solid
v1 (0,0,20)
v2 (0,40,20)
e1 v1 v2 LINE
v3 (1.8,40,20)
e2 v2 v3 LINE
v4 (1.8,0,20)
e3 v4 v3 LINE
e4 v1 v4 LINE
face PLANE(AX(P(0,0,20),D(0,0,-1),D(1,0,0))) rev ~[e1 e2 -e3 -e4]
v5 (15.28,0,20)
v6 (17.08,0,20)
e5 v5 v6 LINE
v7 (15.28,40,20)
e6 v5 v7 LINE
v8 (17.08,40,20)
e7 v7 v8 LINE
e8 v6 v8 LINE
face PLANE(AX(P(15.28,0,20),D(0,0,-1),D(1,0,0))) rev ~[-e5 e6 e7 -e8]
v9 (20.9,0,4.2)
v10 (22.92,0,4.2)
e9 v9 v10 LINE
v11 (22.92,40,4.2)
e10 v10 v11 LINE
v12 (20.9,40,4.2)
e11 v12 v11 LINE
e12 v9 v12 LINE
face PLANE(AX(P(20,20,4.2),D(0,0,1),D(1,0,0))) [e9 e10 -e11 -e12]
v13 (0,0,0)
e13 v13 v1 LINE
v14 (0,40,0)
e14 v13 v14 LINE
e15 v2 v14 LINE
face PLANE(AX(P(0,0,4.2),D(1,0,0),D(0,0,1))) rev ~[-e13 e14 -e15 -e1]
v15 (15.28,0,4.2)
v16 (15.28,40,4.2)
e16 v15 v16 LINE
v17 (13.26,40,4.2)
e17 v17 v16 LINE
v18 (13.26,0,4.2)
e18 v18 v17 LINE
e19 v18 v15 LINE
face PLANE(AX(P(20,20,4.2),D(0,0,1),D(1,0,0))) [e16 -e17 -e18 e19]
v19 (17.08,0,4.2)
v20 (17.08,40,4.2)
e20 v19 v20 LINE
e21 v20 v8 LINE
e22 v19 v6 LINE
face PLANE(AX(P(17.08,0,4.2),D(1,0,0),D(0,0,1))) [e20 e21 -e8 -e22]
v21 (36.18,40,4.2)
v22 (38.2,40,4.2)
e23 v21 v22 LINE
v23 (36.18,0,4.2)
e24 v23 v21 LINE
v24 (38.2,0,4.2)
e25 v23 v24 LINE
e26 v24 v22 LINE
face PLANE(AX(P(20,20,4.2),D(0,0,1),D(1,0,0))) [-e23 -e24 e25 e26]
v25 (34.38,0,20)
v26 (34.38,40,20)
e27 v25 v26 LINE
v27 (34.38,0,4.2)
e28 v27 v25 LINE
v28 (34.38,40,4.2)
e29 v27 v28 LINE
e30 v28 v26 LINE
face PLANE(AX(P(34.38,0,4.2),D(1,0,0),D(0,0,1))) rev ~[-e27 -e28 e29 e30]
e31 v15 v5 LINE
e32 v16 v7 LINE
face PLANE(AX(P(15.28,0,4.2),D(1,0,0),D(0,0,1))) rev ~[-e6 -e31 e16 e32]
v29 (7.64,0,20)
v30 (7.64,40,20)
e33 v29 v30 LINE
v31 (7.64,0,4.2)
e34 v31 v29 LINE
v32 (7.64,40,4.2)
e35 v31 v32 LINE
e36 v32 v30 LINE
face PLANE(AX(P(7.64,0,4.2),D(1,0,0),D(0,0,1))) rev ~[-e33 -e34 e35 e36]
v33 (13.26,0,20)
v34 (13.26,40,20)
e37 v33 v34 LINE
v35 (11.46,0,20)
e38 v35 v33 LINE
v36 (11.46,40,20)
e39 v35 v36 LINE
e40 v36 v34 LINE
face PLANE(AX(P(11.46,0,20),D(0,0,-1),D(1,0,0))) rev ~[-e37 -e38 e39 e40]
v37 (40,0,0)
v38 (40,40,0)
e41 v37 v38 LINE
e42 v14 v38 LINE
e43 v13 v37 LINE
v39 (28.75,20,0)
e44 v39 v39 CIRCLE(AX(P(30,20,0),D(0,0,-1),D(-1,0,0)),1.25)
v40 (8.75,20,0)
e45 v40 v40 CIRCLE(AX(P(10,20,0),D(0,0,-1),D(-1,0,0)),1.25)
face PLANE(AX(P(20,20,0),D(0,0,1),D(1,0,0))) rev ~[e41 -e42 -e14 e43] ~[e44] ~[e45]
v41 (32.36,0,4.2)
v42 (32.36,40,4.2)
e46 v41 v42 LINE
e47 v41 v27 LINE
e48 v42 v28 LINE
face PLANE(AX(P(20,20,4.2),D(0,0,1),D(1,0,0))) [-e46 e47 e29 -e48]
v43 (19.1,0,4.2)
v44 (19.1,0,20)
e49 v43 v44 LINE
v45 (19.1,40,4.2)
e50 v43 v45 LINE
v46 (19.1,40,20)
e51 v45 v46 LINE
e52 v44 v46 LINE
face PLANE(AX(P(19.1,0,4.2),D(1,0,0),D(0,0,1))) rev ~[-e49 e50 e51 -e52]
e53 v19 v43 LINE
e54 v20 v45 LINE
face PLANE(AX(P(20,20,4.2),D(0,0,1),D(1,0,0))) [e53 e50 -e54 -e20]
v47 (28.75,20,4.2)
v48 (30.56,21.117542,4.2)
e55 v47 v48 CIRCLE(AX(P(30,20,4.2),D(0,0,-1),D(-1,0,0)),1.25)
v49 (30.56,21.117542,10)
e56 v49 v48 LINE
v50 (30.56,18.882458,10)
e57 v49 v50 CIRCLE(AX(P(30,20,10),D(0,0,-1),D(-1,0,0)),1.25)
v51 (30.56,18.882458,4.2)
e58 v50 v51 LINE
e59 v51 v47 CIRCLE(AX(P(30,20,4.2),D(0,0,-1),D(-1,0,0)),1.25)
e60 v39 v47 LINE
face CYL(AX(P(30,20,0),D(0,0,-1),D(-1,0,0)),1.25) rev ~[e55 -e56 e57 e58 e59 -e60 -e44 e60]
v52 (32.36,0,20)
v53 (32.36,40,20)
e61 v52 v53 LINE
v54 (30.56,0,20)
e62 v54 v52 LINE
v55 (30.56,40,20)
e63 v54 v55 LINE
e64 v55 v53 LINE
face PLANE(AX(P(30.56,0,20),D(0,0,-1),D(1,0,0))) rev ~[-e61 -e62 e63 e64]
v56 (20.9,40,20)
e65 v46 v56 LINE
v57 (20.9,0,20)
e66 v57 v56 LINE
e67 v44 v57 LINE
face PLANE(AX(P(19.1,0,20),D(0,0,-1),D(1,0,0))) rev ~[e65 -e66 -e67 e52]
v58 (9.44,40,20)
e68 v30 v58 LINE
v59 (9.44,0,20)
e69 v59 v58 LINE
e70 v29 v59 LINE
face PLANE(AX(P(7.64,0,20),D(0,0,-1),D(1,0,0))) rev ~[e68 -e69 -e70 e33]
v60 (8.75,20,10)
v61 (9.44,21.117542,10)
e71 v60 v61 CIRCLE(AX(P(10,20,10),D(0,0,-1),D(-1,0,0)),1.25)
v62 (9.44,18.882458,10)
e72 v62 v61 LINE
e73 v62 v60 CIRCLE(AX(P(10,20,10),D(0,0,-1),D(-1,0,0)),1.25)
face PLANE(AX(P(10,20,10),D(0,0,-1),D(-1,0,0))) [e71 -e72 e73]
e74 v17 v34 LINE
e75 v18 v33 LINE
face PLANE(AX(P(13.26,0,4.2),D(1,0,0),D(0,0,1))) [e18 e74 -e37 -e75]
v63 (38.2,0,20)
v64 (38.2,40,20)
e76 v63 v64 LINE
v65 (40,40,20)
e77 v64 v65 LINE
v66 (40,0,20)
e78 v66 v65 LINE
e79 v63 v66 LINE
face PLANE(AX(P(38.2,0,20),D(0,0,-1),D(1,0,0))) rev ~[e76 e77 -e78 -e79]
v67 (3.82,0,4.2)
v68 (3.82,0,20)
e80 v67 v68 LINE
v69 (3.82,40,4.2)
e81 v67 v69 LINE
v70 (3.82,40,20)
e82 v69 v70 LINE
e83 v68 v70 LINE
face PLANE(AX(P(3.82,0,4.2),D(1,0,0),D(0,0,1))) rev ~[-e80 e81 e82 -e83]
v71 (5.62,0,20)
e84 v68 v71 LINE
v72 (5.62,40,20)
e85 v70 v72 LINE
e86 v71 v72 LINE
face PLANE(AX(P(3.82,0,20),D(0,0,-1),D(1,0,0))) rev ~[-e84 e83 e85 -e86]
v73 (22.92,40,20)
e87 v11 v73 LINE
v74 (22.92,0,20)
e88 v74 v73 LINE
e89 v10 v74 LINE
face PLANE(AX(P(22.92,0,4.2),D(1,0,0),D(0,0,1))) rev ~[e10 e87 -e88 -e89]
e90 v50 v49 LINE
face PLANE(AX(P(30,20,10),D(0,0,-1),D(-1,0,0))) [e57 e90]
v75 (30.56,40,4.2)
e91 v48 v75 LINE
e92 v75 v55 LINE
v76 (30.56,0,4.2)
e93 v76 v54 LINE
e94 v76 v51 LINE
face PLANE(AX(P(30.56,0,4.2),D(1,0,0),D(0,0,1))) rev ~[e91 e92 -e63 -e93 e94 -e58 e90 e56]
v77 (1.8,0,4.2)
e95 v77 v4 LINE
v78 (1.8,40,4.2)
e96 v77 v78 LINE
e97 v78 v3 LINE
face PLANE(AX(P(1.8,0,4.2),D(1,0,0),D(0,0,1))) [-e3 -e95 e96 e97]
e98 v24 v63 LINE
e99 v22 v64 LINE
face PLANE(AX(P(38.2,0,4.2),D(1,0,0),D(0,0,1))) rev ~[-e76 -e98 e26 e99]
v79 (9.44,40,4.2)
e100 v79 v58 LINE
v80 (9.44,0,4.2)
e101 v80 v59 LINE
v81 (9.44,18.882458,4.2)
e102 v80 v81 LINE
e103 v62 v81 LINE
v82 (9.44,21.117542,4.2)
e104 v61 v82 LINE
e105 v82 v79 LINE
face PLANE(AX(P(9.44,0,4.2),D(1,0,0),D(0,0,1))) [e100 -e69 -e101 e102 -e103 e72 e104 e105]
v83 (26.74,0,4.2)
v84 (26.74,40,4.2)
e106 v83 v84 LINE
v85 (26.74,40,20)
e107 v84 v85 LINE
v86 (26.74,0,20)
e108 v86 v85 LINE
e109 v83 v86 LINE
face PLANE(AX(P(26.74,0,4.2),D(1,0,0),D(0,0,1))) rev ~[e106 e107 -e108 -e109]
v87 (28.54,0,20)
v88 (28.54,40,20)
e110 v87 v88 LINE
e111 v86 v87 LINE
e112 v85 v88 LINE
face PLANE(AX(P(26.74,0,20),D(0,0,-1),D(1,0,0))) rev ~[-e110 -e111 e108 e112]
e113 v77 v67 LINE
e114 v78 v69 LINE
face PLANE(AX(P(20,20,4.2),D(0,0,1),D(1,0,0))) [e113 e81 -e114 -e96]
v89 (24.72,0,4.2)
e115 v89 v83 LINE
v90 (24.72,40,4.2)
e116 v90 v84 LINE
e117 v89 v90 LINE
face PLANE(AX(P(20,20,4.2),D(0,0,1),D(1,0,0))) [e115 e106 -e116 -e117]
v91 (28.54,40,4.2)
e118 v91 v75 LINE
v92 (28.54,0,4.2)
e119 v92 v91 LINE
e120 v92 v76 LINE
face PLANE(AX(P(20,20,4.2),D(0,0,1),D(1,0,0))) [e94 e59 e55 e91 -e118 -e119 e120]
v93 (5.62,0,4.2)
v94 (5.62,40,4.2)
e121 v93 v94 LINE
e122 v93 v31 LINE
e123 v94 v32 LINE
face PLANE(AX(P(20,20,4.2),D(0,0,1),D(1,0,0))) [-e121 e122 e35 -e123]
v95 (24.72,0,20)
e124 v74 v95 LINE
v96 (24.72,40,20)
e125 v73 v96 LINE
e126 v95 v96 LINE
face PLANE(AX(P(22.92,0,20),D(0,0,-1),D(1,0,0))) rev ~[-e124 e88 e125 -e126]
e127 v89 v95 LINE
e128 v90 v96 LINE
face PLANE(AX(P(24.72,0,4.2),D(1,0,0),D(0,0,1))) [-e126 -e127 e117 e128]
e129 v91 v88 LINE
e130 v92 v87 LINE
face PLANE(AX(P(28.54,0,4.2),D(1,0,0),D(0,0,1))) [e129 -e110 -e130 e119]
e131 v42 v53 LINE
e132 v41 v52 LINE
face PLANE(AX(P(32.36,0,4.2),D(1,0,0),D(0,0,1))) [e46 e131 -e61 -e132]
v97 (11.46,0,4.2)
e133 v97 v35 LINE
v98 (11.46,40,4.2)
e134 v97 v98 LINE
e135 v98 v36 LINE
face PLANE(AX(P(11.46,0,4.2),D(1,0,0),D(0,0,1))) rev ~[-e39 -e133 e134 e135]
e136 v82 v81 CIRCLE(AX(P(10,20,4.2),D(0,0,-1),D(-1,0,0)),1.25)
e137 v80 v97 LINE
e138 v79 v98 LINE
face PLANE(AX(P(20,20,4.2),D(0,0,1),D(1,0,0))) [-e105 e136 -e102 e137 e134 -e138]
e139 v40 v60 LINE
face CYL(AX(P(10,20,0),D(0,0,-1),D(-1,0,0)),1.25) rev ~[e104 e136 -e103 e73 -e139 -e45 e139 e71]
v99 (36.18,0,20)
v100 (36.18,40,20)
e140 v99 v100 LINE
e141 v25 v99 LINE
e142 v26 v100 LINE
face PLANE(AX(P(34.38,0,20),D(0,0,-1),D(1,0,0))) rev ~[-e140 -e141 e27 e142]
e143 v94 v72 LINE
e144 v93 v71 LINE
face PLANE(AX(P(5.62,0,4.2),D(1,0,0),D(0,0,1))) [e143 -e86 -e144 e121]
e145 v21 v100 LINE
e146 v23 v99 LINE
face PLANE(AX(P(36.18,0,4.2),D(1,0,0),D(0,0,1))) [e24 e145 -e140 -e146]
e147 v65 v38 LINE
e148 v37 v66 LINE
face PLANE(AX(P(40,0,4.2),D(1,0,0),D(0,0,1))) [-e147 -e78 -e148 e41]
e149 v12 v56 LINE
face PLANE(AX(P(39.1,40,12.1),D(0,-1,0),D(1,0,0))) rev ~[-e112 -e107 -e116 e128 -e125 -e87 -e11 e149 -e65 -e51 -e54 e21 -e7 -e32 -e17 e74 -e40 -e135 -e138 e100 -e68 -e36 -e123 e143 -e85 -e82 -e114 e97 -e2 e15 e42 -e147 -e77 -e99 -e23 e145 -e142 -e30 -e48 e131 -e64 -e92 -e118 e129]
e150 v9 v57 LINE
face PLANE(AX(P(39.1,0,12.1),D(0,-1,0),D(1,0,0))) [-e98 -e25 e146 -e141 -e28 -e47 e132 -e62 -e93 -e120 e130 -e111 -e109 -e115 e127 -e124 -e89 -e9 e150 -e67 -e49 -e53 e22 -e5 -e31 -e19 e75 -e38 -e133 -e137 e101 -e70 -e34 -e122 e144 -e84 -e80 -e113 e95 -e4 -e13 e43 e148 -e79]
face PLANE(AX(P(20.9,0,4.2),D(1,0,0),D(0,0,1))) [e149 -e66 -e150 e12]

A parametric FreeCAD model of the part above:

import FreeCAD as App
import Part
import Sketcher
Q = App.Units.Quantity


def add_polygon(sketch, points):
    """Adds a closed chain of lines whose ends are joined by coincident constraints."""
    first, n = sketch.GeometryCount, len(points)
    for a, b in zip(points, points[1:] + points[:1]):
        sketch.addGeometry(Part.LineSegment(App.Vector(*a, 0), App.Vector(*b, 0)), False)
    for i in range(n):
        sketch.addConstraint(Sketcher.Constraint("Coincident", first + i, 2, first + (i + 1) % n, 1))

doc = App.newDocument("Part")
params = doc.addObject("Spreadsheet::Sheet", "Params")
for row, (alias, value) in enumerate([
    ("sketch1_width", "40 mm"),
    ("pad1_length", "4.2 mm"),
    ("sketch2_width", "1.8 mm"),
    ("sketch2_height", "15.8 mm"),
    ("pad2_length", "40 mm"),
    ("linearpattern_pitch", "3.82 mm"),
    ("sketch3_diameter", "2.5 mm"),
    ("pocket1_length", "10 mm"),
], start=1):
    params.set(f"A{row}", alias)
    params.set(f"B{row}", "=" + value)
    params.setAlias(f"B{row}", alias)

body = doc.addObject("PartDesign::Body", "Body")

# Sketch on XY plane
sketch1 = body.newObject("Sketcher::SketchObject", "Sketch")
sketch1.AttachmentSupport = (doc.getObject("XY_Plane"), [""])
sketch1.MapMode = "FlatFace"
add_polygon(sketch1, [(0, 40), (0, 0), (40, 0), (40, 40)])  # lines 0-3
sketch1.addConstraint(Sketcher.Constraint("Vertical", 0))
sketch1.addConstraint(Sketcher.Constraint("Horizontal", 1))
sketch1.addConstraint(Sketcher.Constraint("Vertical", 2))
sketch1.addConstraint(Sketcher.Constraint("Horizontal", 3))
sketch1.addConstraint(Sketcher.Constraint("Coincident", 0, 2, -1, 1))
sketch1.addConstraint(Sketcher.Constraint("Equal", 3, 0))
sketch1.addConstraint(Sketcher.Constraint("DistanceX", 1, 1, 1, 2, Q("40 mm")))
sketch1.setExpression("Constraints[10]", "Params.sketch1_width")
pad1 = body.newObject("PartDesign::Pad", "Pad")
pad1.Profile = sketch1
pad1.setExpression("Length", "Params.pad1_length")

# Sketch on XZ plane
sketch2 = body.newObject("Sketcher::SketchObject", "Sketch001")
sketch2.AttachmentSupport = (doc.getObject("XZ_Plane"), [""])
sketch2.MapMode = "FlatFace"
add_polygon(sketch2, [(0, 20), (0, 4.2), (1.8, 4.2), (1.8, 20)])  # lines 0-3
sketch2.addConstraint(Sketcher.Constraint("Vertical", 0))
sketch2.addConstraint(Sketcher.Constraint("Horizontal", 1))
sketch2.addConstraint(Sketcher.Constraint("Vertical", 2))
sketch2.addConstraint(Sketcher.Constraint("Horizontal", 3))
sketch2.addConstraint(Sketcher.Constraint("PointOnObject", 0, 2, -2))
sketch2.addConstraint(Sketcher.Constraint("DistanceX", 1, 1, 1, 2, Q("1.8 mm")))
sketch2.addConstraint(Sketcher.Constraint("DistanceY", 0, 2, 0, 1, Q("15.8 mm")))
sketch2.addConstraint(Sketcher.Constraint("DistanceY", -1, 1, 2, 2, Q("20 mm")))
sketch2.setExpression("Constraints[9]", "Params.sketch2_width")
sketch2.setExpression("Constraints[10]", "Params.sketch2_height")
pad2 = body.newObject("PartDesign::Pad", "Pad001")
pad2.Profile = sketch2
pad2.setExpression("Length", "Params.pad2_length")
pad2.Reversed = True
doc.recompute()

linearpattern = body.newObject("PartDesign::LinearPattern", "LinearPattern")
linearpattern.Originals = [pad2]
linearpattern.Direction = (doc.getObject("X_Axis"), [""])
linearpattern.Mode = "offset"
linearpattern.setExpression("Offset", "Params.linearpattern_pitch")
linearpattern.Occurrences = 11
body.Tip = linearpattern

# Sketch on XY plane
sketch3 = body.newObject("Sketcher::SketchObject", "Sketch002")
sketch3.AttachmentSupport = (doc.getObject("XY_Plane"), [""])
sketch3.MapMode = "FlatFace"
sketch3.addGeometry(Part.Circle(App.Vector(30, 20, 0), App.Vector(0, 0, 1), 1.2), False)
sketch3.addGeometry(Part.Circle(App.Vector(10, 20, 0), App.Vector(0, 0, 1), 1.2), False)
sketch3.addConstraint(Sketcher.Constraint("Equal", 0, 1))
sketch3.addConstraint(Sketcher.Constraint("Horizontal", 0, 3, 1, 3))
sketch3.addConstraint(Sketcher.Constraint("Diameter", 0, Q("2.5 mm")))
sketch3.addConstraint(Sketcher.Constraint("DistanceX", -1, 1, 0, 3, Q("30 mm")))
sketch3.addConstraint(Sketcher.Constraint("DistanceY", -1, 1, 0, 3, Q("20 mm")))
sketch3.addConstraint(Sketcher.Constraint("DistanceX", -1, 1, 1, 3, Q("10 mm")))
sketch3.setExpression("Constraints[2]", "Params.sketch3_diameter")
pocket1 = body.newObject("PartDesign::Pocket", "Pocket")
pocket1.Profile = sketch3
pocket1.setExpression("Length", "Params.pocket1_length")
pocket1.Reversed = True

doc.recompute()
